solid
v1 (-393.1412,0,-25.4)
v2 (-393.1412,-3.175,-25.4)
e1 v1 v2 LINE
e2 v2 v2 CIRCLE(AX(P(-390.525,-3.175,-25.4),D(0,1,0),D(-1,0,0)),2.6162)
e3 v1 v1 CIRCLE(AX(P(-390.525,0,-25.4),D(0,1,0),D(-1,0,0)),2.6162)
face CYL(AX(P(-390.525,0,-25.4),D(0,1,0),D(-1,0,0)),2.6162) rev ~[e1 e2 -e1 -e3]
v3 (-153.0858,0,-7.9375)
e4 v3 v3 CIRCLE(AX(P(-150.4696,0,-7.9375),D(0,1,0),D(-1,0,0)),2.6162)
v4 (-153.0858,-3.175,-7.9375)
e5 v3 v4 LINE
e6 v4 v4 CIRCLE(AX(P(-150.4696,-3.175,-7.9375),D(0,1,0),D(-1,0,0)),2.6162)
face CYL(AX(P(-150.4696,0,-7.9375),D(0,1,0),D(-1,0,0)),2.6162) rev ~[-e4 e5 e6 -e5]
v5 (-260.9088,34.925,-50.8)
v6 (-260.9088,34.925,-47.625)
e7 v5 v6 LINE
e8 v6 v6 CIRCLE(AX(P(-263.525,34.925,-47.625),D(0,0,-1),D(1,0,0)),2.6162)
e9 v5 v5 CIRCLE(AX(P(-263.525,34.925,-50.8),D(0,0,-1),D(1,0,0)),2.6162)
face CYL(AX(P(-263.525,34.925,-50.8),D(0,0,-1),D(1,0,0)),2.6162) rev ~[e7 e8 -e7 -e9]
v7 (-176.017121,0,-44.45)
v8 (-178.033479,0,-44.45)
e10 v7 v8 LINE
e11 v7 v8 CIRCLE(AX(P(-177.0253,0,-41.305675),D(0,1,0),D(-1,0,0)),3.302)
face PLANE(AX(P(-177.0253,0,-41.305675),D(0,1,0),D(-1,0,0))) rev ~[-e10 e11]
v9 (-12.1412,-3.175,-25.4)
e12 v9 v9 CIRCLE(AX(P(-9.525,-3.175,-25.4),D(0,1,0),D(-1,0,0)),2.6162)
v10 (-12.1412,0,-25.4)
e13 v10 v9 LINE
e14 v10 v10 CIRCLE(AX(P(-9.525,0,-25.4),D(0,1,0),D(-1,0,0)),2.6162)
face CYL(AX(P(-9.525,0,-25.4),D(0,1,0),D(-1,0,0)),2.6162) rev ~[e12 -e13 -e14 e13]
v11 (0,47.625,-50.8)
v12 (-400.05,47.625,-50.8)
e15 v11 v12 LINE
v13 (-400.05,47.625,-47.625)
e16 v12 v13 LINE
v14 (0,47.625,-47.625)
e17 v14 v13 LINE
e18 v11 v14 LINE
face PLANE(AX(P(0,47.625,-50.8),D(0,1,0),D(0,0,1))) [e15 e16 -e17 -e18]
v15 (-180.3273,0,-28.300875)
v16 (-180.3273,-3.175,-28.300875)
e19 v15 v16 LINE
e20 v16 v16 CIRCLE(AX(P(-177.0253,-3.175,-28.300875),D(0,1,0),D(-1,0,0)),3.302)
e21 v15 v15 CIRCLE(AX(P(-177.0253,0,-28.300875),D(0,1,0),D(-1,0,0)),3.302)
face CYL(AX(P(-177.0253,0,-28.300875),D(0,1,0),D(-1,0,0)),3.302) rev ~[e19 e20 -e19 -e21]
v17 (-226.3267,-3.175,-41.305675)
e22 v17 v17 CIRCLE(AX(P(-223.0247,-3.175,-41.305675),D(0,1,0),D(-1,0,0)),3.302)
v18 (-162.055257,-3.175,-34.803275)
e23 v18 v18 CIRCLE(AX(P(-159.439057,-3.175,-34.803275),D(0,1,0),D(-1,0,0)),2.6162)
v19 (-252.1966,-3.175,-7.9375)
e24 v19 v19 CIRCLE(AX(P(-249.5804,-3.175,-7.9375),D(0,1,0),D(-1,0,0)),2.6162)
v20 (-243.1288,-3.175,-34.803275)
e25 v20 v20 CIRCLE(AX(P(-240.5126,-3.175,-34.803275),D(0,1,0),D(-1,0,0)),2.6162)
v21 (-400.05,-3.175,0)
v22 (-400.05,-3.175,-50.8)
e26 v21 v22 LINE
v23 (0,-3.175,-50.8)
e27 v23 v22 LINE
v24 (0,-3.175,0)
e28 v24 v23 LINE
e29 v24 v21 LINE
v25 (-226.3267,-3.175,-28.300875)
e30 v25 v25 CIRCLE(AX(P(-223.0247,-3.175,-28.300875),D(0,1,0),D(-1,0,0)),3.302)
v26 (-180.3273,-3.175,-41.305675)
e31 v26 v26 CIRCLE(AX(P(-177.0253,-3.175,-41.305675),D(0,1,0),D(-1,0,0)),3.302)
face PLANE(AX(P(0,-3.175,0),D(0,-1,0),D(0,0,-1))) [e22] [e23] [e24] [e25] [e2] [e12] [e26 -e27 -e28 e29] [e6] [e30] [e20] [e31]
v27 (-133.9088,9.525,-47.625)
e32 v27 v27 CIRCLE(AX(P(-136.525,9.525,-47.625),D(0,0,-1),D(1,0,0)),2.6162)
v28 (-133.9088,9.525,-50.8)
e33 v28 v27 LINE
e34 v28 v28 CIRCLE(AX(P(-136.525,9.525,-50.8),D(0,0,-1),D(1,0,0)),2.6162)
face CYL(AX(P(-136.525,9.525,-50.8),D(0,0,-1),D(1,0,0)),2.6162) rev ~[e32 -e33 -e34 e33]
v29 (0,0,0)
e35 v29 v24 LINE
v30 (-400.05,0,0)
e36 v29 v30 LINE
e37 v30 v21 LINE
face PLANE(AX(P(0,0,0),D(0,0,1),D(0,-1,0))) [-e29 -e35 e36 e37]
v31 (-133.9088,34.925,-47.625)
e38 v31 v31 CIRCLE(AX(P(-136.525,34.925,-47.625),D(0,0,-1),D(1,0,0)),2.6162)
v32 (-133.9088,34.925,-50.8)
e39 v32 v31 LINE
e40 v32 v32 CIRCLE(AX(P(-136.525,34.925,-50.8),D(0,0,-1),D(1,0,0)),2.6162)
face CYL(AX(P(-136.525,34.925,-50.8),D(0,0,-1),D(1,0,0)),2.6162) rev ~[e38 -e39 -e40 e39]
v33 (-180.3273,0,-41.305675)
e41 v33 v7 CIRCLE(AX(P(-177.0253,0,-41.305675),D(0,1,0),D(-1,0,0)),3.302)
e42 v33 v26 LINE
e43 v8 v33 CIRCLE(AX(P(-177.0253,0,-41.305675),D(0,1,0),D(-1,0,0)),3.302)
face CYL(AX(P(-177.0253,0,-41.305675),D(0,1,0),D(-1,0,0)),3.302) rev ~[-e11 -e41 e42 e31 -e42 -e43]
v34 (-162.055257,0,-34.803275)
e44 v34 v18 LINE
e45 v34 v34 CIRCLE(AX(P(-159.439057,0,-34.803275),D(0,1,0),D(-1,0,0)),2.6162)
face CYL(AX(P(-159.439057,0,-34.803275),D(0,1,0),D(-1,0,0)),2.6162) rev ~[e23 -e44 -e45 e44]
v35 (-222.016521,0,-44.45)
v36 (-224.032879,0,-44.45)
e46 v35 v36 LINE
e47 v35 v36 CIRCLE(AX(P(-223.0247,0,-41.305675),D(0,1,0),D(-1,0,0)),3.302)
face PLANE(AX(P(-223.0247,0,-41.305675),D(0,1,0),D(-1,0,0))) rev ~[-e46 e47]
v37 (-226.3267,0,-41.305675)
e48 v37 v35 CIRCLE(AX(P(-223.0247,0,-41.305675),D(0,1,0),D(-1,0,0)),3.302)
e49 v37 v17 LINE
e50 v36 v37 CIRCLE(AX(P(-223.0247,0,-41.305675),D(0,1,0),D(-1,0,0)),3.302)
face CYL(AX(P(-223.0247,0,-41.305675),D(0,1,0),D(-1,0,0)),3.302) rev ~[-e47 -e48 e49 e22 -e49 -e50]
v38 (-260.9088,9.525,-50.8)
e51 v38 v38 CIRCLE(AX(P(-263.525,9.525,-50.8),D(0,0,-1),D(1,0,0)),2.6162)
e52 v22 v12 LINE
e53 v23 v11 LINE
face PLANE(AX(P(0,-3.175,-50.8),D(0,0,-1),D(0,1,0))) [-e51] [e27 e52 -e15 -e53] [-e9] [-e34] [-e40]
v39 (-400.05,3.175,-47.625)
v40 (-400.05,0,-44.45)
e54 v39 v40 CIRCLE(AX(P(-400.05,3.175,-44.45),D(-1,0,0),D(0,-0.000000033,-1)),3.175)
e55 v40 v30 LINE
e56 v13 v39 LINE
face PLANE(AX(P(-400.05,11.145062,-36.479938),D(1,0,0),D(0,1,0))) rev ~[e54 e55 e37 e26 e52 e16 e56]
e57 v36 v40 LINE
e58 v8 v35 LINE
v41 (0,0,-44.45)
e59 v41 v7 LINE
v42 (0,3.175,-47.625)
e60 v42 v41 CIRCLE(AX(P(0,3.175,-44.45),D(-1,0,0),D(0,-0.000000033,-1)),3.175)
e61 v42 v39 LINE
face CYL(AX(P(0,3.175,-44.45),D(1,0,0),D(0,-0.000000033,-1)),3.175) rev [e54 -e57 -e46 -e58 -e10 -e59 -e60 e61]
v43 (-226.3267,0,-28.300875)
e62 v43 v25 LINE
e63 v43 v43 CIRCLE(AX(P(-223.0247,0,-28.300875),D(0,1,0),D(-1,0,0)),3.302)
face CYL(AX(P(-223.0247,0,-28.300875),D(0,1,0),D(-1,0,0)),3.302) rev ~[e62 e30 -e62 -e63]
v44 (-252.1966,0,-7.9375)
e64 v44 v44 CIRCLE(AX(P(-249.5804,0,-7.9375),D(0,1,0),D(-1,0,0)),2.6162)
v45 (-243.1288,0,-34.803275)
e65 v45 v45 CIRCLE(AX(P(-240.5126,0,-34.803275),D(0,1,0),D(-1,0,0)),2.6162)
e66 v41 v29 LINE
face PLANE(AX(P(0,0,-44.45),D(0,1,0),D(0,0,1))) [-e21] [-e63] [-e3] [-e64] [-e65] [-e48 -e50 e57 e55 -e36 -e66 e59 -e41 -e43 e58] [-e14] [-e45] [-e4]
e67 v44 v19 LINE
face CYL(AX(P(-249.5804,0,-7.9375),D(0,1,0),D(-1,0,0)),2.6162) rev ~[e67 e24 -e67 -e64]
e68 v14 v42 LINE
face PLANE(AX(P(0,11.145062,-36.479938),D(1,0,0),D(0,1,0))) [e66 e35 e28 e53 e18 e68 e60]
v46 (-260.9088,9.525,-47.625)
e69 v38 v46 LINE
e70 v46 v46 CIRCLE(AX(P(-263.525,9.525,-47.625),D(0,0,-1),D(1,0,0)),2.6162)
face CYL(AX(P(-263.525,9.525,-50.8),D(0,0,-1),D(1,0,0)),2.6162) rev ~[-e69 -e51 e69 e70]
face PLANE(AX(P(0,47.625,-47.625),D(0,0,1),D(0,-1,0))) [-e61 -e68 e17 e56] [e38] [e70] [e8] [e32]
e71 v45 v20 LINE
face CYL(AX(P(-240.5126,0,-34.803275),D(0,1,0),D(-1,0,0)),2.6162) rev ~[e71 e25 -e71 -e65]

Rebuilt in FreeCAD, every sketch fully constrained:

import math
import FreeCAD as App
import Part
import Sketcher
from FreeCAD import Vector
Q = App.Units.Quantity

doc = App.newDocument("Part")
params = doc.addObject("Spreadsheet::Sheet", "Params")
for row, (alias, value) in enumerate([
    ("sketch1_width", "2 in"),
    ("sketch1_radius", "0.125 in"),
    ("sketch1_width2", "1.75 in"),
    ("pad1_length", "15.75 in"),
    ("sketch2_diameter", "0.26 in"),
    ("sketch2_diameter2", "0.206 in"),
    ("sketch3_diameter", "0.206 in"),
], start=1):
    params.set(f"A{row}", alias)
    params.set(f"B{row}", "=" + value)
    params.setAlias(f"B{row}", alias)

body = doc.addObject("PartDesign::Body", "Body")

# Sketch on YZ plane
sketch1 = body.newObject("Sketcher::SketchObject", "Sketch")
sketch1.AttachmentSupport = (doc.getObject("YZ_Plane"), [""])
sketch1.MapMode = "FlatFace"
sketch1.addGeometry([
    Part.LineSegment(Vector(0, -44.5, 0), Vector(0, 0, 0)),  # 0
    Part.LineSegment(Vector(0, 0, 0), Vector(-3.2, 0, 0)),  # 1
    Part.LineSegment(Vector(-3.2, 0, 0), Vector(-3.2, -50.8, 0)),  # 2
    Part.LineSegment(Vector(-3.2, -50.8, 0), Vector(47.6, -50.8, 0)),  # 3
    Part.LineSegment(Vector(47.6, -50.8, 0), Vector(47.6, -47.6, 0)),  # 4
    Part.LineSegment(Vector(47.6, -47.6, 0), Vector(3.2, -47.6, 0)),  # 5
    Part.ArcOfCircle(Part.Circle(Vector(3.2, -44.4, 0), Vector(0, 0, 1), 3.2), math.radians(-180), math.radians(-90)),  # 6
], False)
sketch1.addConstraint([
    Sketcher.Constraint("Coincident", 0, 2, 1, 1),
    Sketcher.Constraint("Coincident", 1, 2, 2, 1),
    Sketcher.Constraint("Coincident", 2, 2, 3, 1),
    Sketcher.Constraint("Coincident", 3, 2, 4, 1),
    Sketcher.Constraint("Coincident", 4, 2, 5, 1),
    Sketcher.Constraint("Tangent", 5, 2, 6, 2),
    Sketcher.Constraint("Tangent", 6, 1, 0, 1),
    Sketcher.Constraint("Vertical", 0),
    Sketcher.Constraint("Horizontal", 1),
    Sketcher.Constraint("Vertical", 2),
    Sketcher.Constraint("Horizontal", 3),
    Sketcher.Constraint("Vertical", 4),
    Sketcher.Constraint("Horizontal", 5),
    Sketcher.Constraint("Coincident", 0, 2, -1, 1),
    Sketcher.Constraint("Equal", 5, 0),
    Sketcher.Constraint("Equal", 3, 2),
    Sketcher.Constraint("DistanceX", 3, 1, 3, 2, Q("2 in")),
    Sketcher.Constraint("Radius", 6, Q("0.125 in")),
    Sketcher.Constraint("DistanceX", 5, 2, 5, 1, Q("1.75 in")),
])
sketch1.setExpression("Constraints[16]", "Params.sketch1_width")
sketch1.setExpression("Constraints[17]", "Params.sketch1_radius")
sketch1.setExpression("Constraints[18]", "Params.sketch1_width2")
pad1 = body.newObject("PartDesign::Pad", "Pad")
pad1.Profile = sketch1
pad1.setExpression("Length", "Params.pad1_length")
pad1.Reversed = True

# Sketch on XZ plane
sketch2 = body.newObject("Sketcher::SketchObject", "Sketch001")
sketch2.AttachmentSupport = (doc.getObject("XZ_Plane"), [""])
sketch2.MapMode = "FlatFace"
sketch2.addGeometry([
    Part.Circle(Vector(-9.5, -25.4, 0), Vector(0, 0, 1), 2.6),  # 0
    Part.Circle(Vector(-390.5, -25.4, 0), Vector(0, 0, 1), 2.6),  # 1
    Part.Circle(Vector(-177, -41.3, 0), Vector(0, 0, 1), 3.3),  # 2
    Part.Circle(Vector(-223, -41.3, 0), Vector(0, 0, 1), 3.3),  # 3
    Part.Circle(Vector(-177, -28.3, 0), Vector(0, 0, 1), 3.3),  # 4
    Part.Circle(Vector(-223, -28.3, 0), Vector(0, 0, 1), 3.3),  # 5
    Part.Circle(Vector(-159.4, -34.8, 0), Vector(0, 0, 1), 2.6),  # 6
    Part.Circle(Vector(-240.5, -34.8, 0), Vector(0, 0, 1), 2.6),  # 7
    Part.Circle(Vector(-249.6, -7.9, 0), Vector(0, 0, 1), 2.6),  # 8
    Part.Circle(Vector(-150.5, -7.9, 0), Vector(0, 0, 1), 2.6),  # 9
], False)
sketch2.addConstraint([
    Sketcher.Constraint("Equal", 0, 1),
    Sketcher.Constraint("Equal", 2, 3),
    Sketcher.Constraint("Equal", 3, 4),
    Sketcher.Constraint("Equal", 4, 5),
    Sketcher.Constraint("Equal", 1, 6),
    Sketcher.Constraint("Equal", 6, 7),
    Sketcher.Constraint("Equal", 7, 8),
    Sketcher.Constraint("Equal", 8, 9),
    Sketcher.Constraint("Horizontal", 0, 3, 1, 3),
    Sketcher.Constraint("Horizontal", 2, 3, 3, 3),
    Sketcher.Constraint("Horizontal", 4, 3, 5, 3),
    Sketcher.Constraint("Horizontal", 6, 3, 7, 3),
    Sketcher.Constraint("Horizontal", 8, 3, 9, 3),
    Sketcher.Constraint("Vertical", 2, 3, 4, 3),
    Sketcher.Constraint("Vertical", 3, 3, 5, 3),
    Sketcher.Constraint("Diameter", 2, Q("0.26 in")),
    Sketcher.Constraint("Diameter", 0, Q("0.206 in")),
    Sketcher.Constraint("DistanceY", 0, 3, -1, 1, Q("1 in")),
    Sketcher.Constraint("DistanceX", 1, 3, 0, 3, Q("15 in")),
    Sketcher.Constraint("DistanceX", 0, 3, -1, 1, Q("0.375 in")),
    Sketcher.Constraint("DistanceX", 7, 3, -1, 1, Q("9.469 in")),
    Sketcher.Constraint("DistanceX", 8, 3, -1, 1, Q("9.826 in")),
    Sketcher.Constraint("DistanceY", 8, 3, -1, 1, Q("0.3125 in")),
    Sketcher.Constraint("DistanceX", 9, 3, -1, 1, Q("5.924 in")),
    Sketcher.Constraint("DistanceX", 3, 3, 2, 3, Q("1.811 in")),
    Sketcher.Constraint("DistanceY", 2, 3, 4, 3, Q("0.512 in")),
    Sketcher.Constraint("DistanceY", 6, 3, 4, 3, Q("0.256 in")),
    Sketcher.Constraint("DistanceX", 2, 3, -1, 1, Q("6.9695 in")),
    Sketcher.Constraint("DistanceY", 2, 3, -1, 1, Q("41.305675 mm")),
    Sketcher.Constraint("DistanceX", 6, 3, -1, 1, Q("159.439057 mm")),
])
sketch2.setExpression("Constraints[15]", "Params.sketch2_diameter")
sketch2.setExpression("Constraints[16]", "Params.sketch2_diameter2")
pocket1 = body.newObject("PartDesign::Pocket", "Pocket")
pocket1.Profile = sketch2
pocket1.Type = "ThroughAll"
pocket1.Reversed = True

# Sketch on XY plane
sketch3 = body.newObject("Sketcher::SketchObject", "Sketch002")
sketch3.AttachmentSupport = (doc.getObject("XY_Plane"), [""])
sketch3.MapMode = "FlatFace"
sketch3.AttachmentOffset = App.Placement(Vector(0, 0, -2 * 25.4), App.Rotation())
sketch3.addGeometry([
    Part.Circle(Vector(-136.5, 9.5, 0), Vector(0, 0, 1), 2.6),
    Part.Circle(Vector(-136.5, 34.9, 0), Vector(0, 0, 1), 2.6),
    Part.Circle(Vector(-263.5, 9.5, 0), Vector(0, 0, 1), 2.6),
    Part.Circle(Vector(-263.5, 34.9, 0), Vector(0, 0, 1), 2.6),
], False)
sketch3.addConstraint([
    Sketcher.Constraint("Equal", 0, 1),
    Sketcher.Constraint("Equal", 1, 2),
    Sketcher.Constraint("Equal", 2, 3),
    Sketcher.Constraint("Horizontal", 0, 3, 2, 3),
    Sketcher.Constraint("Horizontal", 1, 3, 3, 3),
    Sketcher.Constraint("Vertical", 0, 3, 1, 3),
    Sketcher.Constraint("Vertical", 2, 3, 3, 3),
    Sketcher.Constraint("Diameter", 0, Q("0.206 in")),
    Sketcher.Constraint("DistanceY", 0, 3, 1, 3, Q("1 in")),
    Sketcher.Constraint("DistanceX", 2, 3, 0, 3, Q("5 in")),
    Sketcher.Constraint("DistanceX", 0, 3, -1, 1, Q("5.375 in")),
    Sketcher.Constraint("DistanceY", -1, 1, 0, 3, Q("0.375 in")),
])
sketch3.setExpression("Constraints[7]", "Params.sketch3_diameter")
pocket2 = body.newObject("PartDesign::Pocket", "Pocket001")
pocket2.Profile = sketch3
pocket2.Type = "ThroughAll"
pocket2.Reversed = True

doc.recompute()
